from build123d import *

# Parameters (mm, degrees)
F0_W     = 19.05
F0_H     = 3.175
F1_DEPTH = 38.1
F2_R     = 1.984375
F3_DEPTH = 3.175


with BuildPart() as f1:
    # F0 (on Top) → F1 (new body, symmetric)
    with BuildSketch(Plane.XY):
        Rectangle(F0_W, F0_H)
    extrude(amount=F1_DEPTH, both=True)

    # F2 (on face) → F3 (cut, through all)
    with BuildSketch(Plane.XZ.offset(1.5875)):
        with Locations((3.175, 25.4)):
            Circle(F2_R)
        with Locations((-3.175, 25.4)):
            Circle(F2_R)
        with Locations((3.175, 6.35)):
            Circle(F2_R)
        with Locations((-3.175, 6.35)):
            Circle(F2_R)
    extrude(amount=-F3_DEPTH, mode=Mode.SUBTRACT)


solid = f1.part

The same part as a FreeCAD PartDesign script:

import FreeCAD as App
import Part
import Sketcher

V = App.Vector
Q = App.Units.Quantity


def add_polygon(sketch, points):
    """Adds a closed chain of lines whose ends are joined by coincident constraints."""
    first, n = sketch.GeometryCount, len(points)
    for a, b in zip(points, points[1:] + points[:1]):
        sketch.addGeometry(Part.LineSegment(App.Vector(*a, 0), App.Vector(*b, 0)), False)
    for i in range(n):
        sketch.addConstraint(Sketcher.Constraint("Coincident", first + i, 2, first + (i + 1) % n, 1))

doc = App.newDocument("Part")
params = doc.addObject("Spreadsheet::Sheet", "Params")
for row, (alias, value) in enumerate([
    ("sketch1_width", "0.75 in"),
    ("sketch1_height", "0.125 in"),
    ("pad1_length", "3 in"),
    ("sketch2_diameter", "0.15625 in"),
], start=1):
    params.set(f"A{row}", alias)
    params.set(f"B{row}", "=" + value)
    params.setAlias(f"B{row}", alias)

body = doc.addObject("PartDesign::Body", "Body")

# Sketch on XY plane
sketch1 = body.newObject("Sketcher::SketchObject", "Sketch")
sketch1.AttachmentSupport = (doc.getObject("XY_Plane"), [""])
sketch1.MapMode = "FlatFace"
add_polygon(sketch1, [(-9.525, 1.5875), (-9.525, -1.5875), (9.525, -1.5875), (9.525, 1.5875)])  # lines 0-3
sketch1.addConstraint(Sketcher.Constraint("Vertical", 0))
sketch1.addConstraint(Sketcher.Constraint("Horizontal", 1))
sketch1.addConstraint(Sketcher.Constraint("Vertical", 2))
sketch1.addConstraint(Sketcher.Constraint("Horizontal", 3))
sketch1.addConstraint(Sketcher.Constraint("Symmetric", 0, 2, 2, 2, -1, 1))
sketch1.addConstraint(Sketcher.Constraint("DistanceX", 1, 1, 1, 2, Q("0.75 in")))
sketch1.addConstraint(Sketcher.Constraint("DistanceY", 0, 2, 0, 1, Q("0.125 in")))
sketch1.setExpression("Constraints[9]", "Params.sketch1_width")
sketch1.setExpression("Constraints[10]", "Params.sketch1_height")
pad1 = body.newObject("PartDesign::Pad", "Pad")
pad1.Profile = sketch1
pad1.setExpression("Length", "Params.pad1_length")
pad1.Midplane = True

# Sketch on XZ plane
sketch2 = body.newObject("Sketcher::SketchObject", "Sketch001")
sketch2.AttachmentSupport = (doc.getObject("XZ_Plane"), [""])
sketch2.MapMode = "FlatFace"
sketch2.AttachmentOffset = App.Placement(V(0, 0, 0.0625 * 25.4), App.Rotation())
sketch2.addGeometry(Part.Circle(V(3.175, 25.4, 0), V(0, 0, 1), 1.984375), False)
sketch2.addGeometry(Part.Circle(V(-3.175, 25.4, 0), V(0, 0, 1), 1.984375), False)
sketch2.addGeometry(Part.Circle(V(3.175, 6.35, 0), V(0, 0, 1), 1.984375), False)
sketch2.addGeometry(Part.Circle(V(-3.175, 6.35, 0), V(0, 0, 1), 1.984375), False)
sketch2.addConstraint(Sketcher.Constraint("Equal", 0, 1))
sketch2.addConstraint(Sketcher.Constraint("Equal", 1, 2))
sketch2.addConstraint(Sketcher.Constraint("Equal", 2, 3))
sketch2.addConstraint(Sketcher.Constraint("Symmetric", 0, 3, 1, 3, -2))
sketch2.addConstraint(Sketcher.Constraint("Symmetric", 2, 3, 3, 3, -2))
sketch2.addConstraint(Sketcher.Constraint("Vertical", 0, 3, 2, 3))
sketch2.addConstraint(Sketcher.Constraint("Diameter", 0, Q("0.15625 in")))
sketch2.addConstraint(Sketcher.Constraint("DistanceY", -1, 1, 0, 3, Q("1 in")))
sketch2.addConstraint(Sketcher.Constraint("DistanceY", -1, 1, 2, 3, Q("0.25 in")))
sketch2.addConstraint(Sketcher.Constraint("DistanceX", 1, 3, 0, 3, Q("0.25 in")))
sketch2.setExpression("Constraints[6]", "Params.sketch2_diameter")
pocket1 = body.newObject("PartDesign::Pocket", "Pocket")
pocket1.Profile = sketch2
pocket1.Type = "ThroughAll"

doc.recompute()
